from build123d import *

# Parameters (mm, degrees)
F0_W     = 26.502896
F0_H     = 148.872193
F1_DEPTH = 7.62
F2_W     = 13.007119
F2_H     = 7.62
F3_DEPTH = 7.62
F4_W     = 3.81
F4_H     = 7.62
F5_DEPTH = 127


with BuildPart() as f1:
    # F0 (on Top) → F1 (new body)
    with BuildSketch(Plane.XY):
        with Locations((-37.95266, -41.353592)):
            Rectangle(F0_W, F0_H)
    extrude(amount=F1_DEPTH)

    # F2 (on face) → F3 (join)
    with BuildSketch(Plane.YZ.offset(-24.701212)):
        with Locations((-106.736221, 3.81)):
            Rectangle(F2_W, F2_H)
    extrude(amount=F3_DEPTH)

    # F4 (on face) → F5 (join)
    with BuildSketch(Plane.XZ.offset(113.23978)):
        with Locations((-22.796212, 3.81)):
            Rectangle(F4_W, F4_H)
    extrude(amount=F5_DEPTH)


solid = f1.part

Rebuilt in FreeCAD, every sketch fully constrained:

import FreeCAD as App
import Part
import Sketcher
Q = App.Units.Quantity


def add_polygon(sketch, points):
    """Adds a closed chain of lines whose ends are joined by coincident constraints."""
    first, n = sketch.GeometryCount, len(points)
    for a, b in zip(points, points[1:] + points[:1]):
        sketch.addGeometry(Part.LineSegment(App.Vector(*a, 0), App.Vector(*b, 0)), False)
    for i in range(n):
        sketch.addConstraint(Sketcher.Constraint("Coincident", first + i, 2, first + (i + 1) % n, 1))

doc = App.newDocument("Part")
body = doc.addObject("PartDesign::Body", "Body")

# Sketch on XY plane
sketch1 = body.newObject("Sketcher::SketchObject", "Sketch")
sketch1.AttachmentSupport = (doc.getObject("XY_Plane"), [""])
sketch1.MapMode = "FlatFace"
add_polygon(sketch1, [(-51, 33), (-51, -116), (-25, -116), (-25, 33)])  # lines 0-3
sketch1.addConstraint(Sketcher.Constraint("Vertical", 0))
sketch1.addConstraint(Sketcher.Constraint("Horizontal", 1))
sketch1.addConstraint(Sketcher.Constraint("Vertical", 2))
sketch1.addConstraint(Sketcher.Constraint("Horizontal", 3))
sketch1.addConstraint(Sketcher.Constraint("DistanceX", 1, 1, 1, 2, Q("26.502896 mm")))
sketch1.addConstraint(Sketcher.Constraint("DistanceY", 0, 2, 0, 1, Q("148.872193 mm")))
sketch1.addConstraint(Sketcher.Constraint("DistanceY", 0, 2, -1, 1, Q("115.789688 mm")))
sketch1.addConstraint(Sketcher.Constraint("DistanceX", 0, 2, -1, 1, Q("51.204108 mm")))
pad1 = body.newObject("PartDesign::Pad", "Pad")
pad1.Profile = sketch1
pad1.Length = Q("0.3 in")

# Sketch on YZ plane
sketch2 = body.newObject("Sketcher::SketchObject", "Sketch001")
sketch2.AttachmentSupport = (doc.getObject("YZ_Plane"), [""])
sketch2.MapMode = "FlatFace"
sketch2.AttachmentOffset = App.Placement(App.Vector(0, 0, -24.701212), App.Rotation())
add_polygon(sketch2, [(-113, 8), (-113, 0), (-100, 0), (-100, 8)])  # lines 0-3
sketch2.addConstraint(Sketcher.Constraint("Vertical", 0))
sketch2.addConstraint(Sketcher.Constraint("Horizontal", 1))
sketch2.addConstraint(Sketcher.Constraint("Vertical", 2))
sketch2.addConstraint(Sketcher.Constraint("Horizontal", 3))
sketch2.addConstraint(Sketcher.Constraint("PointOnObject", 0, 2, -1))
sketch2.addConstraint(Sketcher.Constraint("DistanceY", 0, 2, 0, 1, Q("0.3 in")))
sketch2.addConstraint(Sketcher.Constraint("DistanceX", 1, 1, 1, 2, Q("13.007119 mm")))
sketch2.addConstraint(Sketcher.Constraint("DistanceX", 0, 2, -1, 1, Q("113.23978 mm")))
pad2 = body.newObject("PartDesign::Pad", "Pad001")
pad2.Profile = sketch2
pad2.Length = Q("0.3 in")

# Sketch on XZ plane
sketch3 = body.newObject("Sketcher::SketchObject", "Sketch002")
sketch3.AttachmentSupport = (doc.getObject("XZ_Plane"), [""])
sketch3.MapMode = "FlatFace"
sketch3.AttachmentOffset = App.Placement(App.Vector(0, 0, 113.23978), App.Rotation())
add_polygon(sketch3, [(-24.7, 7.6), (-24.7, 0), (-20.9, 0), (-20.9, 7.6)])  # lines 0-3
sketch3.addConstraint(Sketcher.Constraint("Vertical", 0))
sketch3.addConstraint(Sketcher.Constraint("Horizontal", 1))
sketch3.addConstraint(Sketcher.Constraint("Vertical", 2))
sketch3.addConstraint(Sketcher.Constraint("Horizontal", 3))
sketch3.addConstraint(Sketcher.Constraint("PointOnObject", 0, 2, -1))
sketch3.addConstraint(Sketcher.Constraint("DistanceY", 0, 2, 0, 1, Q("0.3 in")))
sketch3.addConstraint(Sketcher.Constraint("DistanceX", 1, 1, 1, 2, Q("0.15 in")))
sketch3.addConstraint(Sketcher.Constraint("DistanceX", 1, 2, -1, 1, Q("20.891212 mm")))
pad3 = body.newObject("PartDesign::Pad", "Pad002")
pad3.Profile = sketch3
pad3.Length = Q("5 in")

doc.recompute()
